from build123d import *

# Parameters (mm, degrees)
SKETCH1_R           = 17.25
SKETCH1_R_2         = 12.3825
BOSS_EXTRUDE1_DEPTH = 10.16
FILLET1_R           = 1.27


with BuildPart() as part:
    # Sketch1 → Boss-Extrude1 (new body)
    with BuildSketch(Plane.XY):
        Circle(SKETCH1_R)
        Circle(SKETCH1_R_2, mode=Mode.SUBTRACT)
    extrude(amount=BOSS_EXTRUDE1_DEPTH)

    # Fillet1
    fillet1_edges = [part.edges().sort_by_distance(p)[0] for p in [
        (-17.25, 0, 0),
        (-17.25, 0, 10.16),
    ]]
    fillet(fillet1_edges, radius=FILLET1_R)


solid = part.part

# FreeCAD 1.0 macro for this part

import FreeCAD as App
import Part
import Sketcher

V = App.Vector
Q = App.Units.Quantity


def edges_at(feature, points):
    """Names of the edges that pass closest to the given points."""
    edges = feature.Shape.Edges
    near = lambda p: min(range(len(edges)), key=lambda i: edges[i].distToShape(Part.Vertex(*p))[0])
    return sorted({f"Edge{near(p) + 1}" for p in points})

doc = App.newDocument("Part")
body = doc.addObject("PartDesign::Body", "Body")

# Sketch on XY plane
sketch1 = doc.addObject("Sketcher::SketchObject", "Sketch")
body.addObject(sketch1)
sketch1.AttachmentSupport = (doc.XY_Plane, [""])
sketch1.MapMode = "FlatFace"
sketch1.addGeometry([
    Part.Circle(V(0, 0, 0), V(0, 0, 1), 17),
    Part.Circle(V(0, 0, 0), V(0, 0, 1), 12),
], False)
sketch1.addConstraint([
    Sketcher.Constraint("Coincident", 0, 3, -1, 1),
    Sketcher.Constraint("Coincident", 1, 3, -1, 1),
    Sketcher.Constraint("Diameter", 1, Q("0.975 in")),
    Sketcher.Constraint("Diameter", 0, Q("34.5 mm")),
])
pad1 = doc.addObject("PartDesign::Pad", "Pad")
body.addObject(pad1)
pad1.Profile = sketch1
pad1.Length = Q("0.4 in")
doc.recompute()

fillet = doc.addObject("PartDesign::Fillet", "Fillet")
body.addObject(fillet)
fillet.Base = (pad1, edges_at(pad1, [(-17.25, 0, 0), (-17.25, 0, 10.16)]))
fillet.Radius = Q("0.05 in")

doc.recompute()
